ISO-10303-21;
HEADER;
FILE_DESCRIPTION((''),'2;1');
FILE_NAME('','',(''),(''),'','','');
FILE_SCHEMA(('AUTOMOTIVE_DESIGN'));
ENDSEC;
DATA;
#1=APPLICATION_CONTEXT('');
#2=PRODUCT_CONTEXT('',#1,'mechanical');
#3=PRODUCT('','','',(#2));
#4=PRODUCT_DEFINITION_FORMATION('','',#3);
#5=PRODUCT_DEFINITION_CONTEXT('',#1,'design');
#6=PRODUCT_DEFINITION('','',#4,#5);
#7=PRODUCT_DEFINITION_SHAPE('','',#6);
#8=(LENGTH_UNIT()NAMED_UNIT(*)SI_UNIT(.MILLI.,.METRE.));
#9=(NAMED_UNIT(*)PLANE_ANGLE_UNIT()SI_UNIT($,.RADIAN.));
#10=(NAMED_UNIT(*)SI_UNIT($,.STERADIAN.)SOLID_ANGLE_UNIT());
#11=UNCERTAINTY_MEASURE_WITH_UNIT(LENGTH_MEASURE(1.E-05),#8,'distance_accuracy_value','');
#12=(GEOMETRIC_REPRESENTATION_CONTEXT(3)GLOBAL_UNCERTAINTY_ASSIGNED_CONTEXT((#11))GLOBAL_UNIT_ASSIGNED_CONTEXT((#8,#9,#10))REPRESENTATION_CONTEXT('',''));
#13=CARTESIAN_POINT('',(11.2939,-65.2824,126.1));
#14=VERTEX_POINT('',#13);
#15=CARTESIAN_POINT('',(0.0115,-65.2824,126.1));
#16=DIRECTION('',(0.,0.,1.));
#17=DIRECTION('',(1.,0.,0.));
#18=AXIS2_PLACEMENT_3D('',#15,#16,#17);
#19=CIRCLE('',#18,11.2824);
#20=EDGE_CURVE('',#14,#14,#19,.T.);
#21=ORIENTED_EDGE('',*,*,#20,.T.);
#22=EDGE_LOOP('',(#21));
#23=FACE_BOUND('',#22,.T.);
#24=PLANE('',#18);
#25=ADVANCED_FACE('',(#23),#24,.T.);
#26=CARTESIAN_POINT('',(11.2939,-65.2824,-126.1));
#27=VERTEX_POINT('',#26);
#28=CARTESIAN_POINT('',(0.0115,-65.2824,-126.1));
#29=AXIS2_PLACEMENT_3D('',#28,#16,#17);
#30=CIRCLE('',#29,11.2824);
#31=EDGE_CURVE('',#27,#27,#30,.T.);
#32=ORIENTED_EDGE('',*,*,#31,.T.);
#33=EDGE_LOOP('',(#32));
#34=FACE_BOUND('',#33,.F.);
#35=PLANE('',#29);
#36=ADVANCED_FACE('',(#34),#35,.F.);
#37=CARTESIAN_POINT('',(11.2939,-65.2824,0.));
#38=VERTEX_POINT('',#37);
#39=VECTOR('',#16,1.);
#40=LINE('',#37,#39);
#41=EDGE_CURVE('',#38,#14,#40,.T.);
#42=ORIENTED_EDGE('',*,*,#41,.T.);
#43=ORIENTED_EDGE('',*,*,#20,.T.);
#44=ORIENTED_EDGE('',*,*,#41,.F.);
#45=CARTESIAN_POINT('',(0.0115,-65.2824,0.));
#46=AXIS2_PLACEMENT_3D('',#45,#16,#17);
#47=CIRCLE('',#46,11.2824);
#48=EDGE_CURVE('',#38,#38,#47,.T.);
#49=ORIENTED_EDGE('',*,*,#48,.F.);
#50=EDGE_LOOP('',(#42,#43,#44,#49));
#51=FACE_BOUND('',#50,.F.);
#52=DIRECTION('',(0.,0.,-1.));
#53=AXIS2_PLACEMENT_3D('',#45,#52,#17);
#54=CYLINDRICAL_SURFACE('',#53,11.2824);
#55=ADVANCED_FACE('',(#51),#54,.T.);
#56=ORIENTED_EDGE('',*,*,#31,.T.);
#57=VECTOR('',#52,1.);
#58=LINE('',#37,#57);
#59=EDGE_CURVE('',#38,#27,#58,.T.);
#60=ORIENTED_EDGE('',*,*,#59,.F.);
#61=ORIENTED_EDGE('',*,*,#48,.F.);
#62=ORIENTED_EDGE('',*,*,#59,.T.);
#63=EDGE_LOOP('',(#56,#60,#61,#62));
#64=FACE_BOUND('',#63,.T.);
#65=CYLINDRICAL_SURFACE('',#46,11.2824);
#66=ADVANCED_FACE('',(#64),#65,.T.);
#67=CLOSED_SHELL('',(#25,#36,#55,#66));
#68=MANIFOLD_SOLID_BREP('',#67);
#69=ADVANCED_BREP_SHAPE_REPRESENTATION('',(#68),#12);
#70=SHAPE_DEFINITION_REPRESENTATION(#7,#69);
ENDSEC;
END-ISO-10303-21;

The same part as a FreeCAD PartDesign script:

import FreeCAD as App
import Part
import Sketcher
from FreeCAD import Vector

doc = App.newDocument("Part")
params = doc.addObject("Spreadsheet::Sheet", "Params")
for row, (alias, value) in enumerate([
    ("pad1_length", "252.2 mm"),
], start=1):
    params.set(f"A{row}", alias)
    params.set(f"B{row}", "=" + value)
    params.setAlias(f"B{row}", alias)

body = doc.addObject("PartDesign::Body", "Body")

# Sketch on XY plane
sketch1 = doc.addObject("Sketcher::SketchObject", "Sketch")
body.addObject(sketch1)
sketch1.AttachmentSupport = (doc.XY_Plane, [""])
sketch1.MapMode = "FlatFace"
sketch1.addGeometry(Part.Circle(Vector(0.0115, -65.2824, 0), Vector(0, 0, 1), 11.2824), False)
sketch1.addConstraint(Sketcher.Constraint("Diameter", 0, 22.5648))
sketch1.addConstraint(Sketcher.Constraint("DistanceX", -1, 1, 0, 3, 0.0115))
sketch1.addConstraint(Sketcher.Constraint("DistanceY", 0, 3, -1, 1, 65.2824))
pad1 = doc.addObject("PartDesign::Pad", "Pad")
body.addObject(pad1)
pad1.Profile = sketch1
pad1.setExpression("Length", "Params.pad1_length")
pad1.Midplane = True

doc.recompute()
